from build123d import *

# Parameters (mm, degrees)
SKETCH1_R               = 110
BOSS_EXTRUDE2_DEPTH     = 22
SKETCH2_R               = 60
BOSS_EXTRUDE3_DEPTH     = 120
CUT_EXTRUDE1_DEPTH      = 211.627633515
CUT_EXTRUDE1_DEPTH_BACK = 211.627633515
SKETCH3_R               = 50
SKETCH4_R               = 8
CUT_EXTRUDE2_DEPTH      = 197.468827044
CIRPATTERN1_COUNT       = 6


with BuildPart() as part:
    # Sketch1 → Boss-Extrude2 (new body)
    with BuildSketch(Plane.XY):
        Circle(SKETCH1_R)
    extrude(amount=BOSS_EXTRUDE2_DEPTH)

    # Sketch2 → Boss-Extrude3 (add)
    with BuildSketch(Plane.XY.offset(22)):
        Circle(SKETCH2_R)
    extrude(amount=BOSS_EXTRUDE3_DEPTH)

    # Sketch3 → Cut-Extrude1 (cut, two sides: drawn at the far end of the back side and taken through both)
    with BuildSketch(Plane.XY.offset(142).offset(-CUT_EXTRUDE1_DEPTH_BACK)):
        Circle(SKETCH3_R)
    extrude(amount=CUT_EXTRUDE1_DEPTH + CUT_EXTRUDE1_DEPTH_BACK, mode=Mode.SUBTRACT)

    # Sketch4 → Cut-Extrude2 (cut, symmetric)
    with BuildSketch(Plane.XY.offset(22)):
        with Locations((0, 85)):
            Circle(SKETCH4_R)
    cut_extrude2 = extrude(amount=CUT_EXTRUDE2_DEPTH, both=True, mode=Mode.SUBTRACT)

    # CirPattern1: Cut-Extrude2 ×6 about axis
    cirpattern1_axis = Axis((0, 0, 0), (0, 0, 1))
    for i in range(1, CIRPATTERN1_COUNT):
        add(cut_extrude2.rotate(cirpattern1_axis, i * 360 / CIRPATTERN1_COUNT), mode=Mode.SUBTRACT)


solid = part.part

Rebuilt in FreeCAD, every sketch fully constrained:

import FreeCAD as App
import Part
import Sketcher
Q = App.Units.Quantity

doc = App.newDocument("Part")
body = doc.addObject("PartDesign::Body", "Body")

sketch1 = body.newObject("Sketcher::SketchObject", "Sketch")
sketch1.AttachmentSupport = (doc.getObject("XY_Plane"), [""])
sketch1.MapMode = "FlatFace"
sketch1.addGeometry(Part.Circle(App.Vector(0, 0, 0), App.Vector(0, 0, 1), 110), False)
sketch1.addConstraint([
    Sketcher.Constraint("Coincident", 0, 3, -1, 1),
    Sketcher.Constraint("Diameter", 0, Q("220 mm")),
])
pad1 = body.newObject("PartDesign::Pad", "Pad")
pad1.Profile = sketch1
pad1.Length = 22

sketch2 = body.newObject("Sketcher::SketchObject", "Sketch001")
sketch2.AttachmentSupport = (doc.getObject("XY_Plane"), [""])
sketch2.MapMode = "FlatFace"
sketch2.AttachmentOffset = App.Placement(App.Vector(0, 0, 22), App.Rotation())
sketch2.addGeometry(Part.Circle(App.Vector(0, 0, 0), App.Vector(0, 0, 1), 60), False)
sketch2.addConstraint([
    Sketcher.Constraint("Coincident", 0, 3, -1, 1),
    Sketcher.Constraint("Diameter", 0, Q("120 mm")),
])
pad2 = body.newObject("PartDesign::Pad", "Pad001")
pad2.Profile = sketch2
pad2.Length = 120

sketch3 = body.newObject("Sketcher::SketchObject", "Sketch002")
sketch3.AttachmentSupport = (doc.getObject("XY_Plane"), [""])
sketch3.MapMode = "FlatFace"
sketch3.AttachmentOffset = App.Placement(App.Vector(0, 0, 142), App.Rotation())
sketch3.addGeometry(Part.Circle(App.Vector(0, 0, 0), App.Vector(0, 0, 1), 50), False)
sketch3.addConstraint([
    Sketcher.Constraint("Coincident", 0, 3, -1, 1),
    Sketcher.Constraint("Diameter", 0, Q("100 mm")),
])
pocket1 = body.newObject("PartDesign::Pocket", "Pocket")
pocket1.Profile = sketch3
pocket1.Type = "ThroughAll"
pocket1.Midplane = True

sketch4 = body.newObject("Sketcher::SketchObject", "Sketch003")
sketch4.AttachmentSupport = (doc.getObject("XY_Plane"), [""])
sketch4.MapMode = "FlatFace"
sketch4.AttachmentOffset = App.Placement(App.Vector(0, 0, 22), App.Rotation())
sketch4.addGeometry(Part.Circle(App.Vector(0, 85, 0), App.Vector(0, 0, 1), 8), False)
sketch4.addConstraint([
    Sketcher.Constraint("PointOnObject", 0, 3, -2),
    Sketcher.Constraint("Diameter", 0, Q("16 mm")),
    Sketcher.Constraint("DistanceY", -1, 1, 0, 3, Q("85 mm")),
])
pocket2 = body.newObject("PartDesign::Pocket", "Pocket001")
pocket2.Profile = sketch4
pocket2.Length = 394.937654
pocket2.Midplane = True
doc.recompute()

polarpattern = body.newObject("PartDesign::PolarPattern", "PolarPattern")
polarpattern.Originals = [pocket2]
polarpattern.Axis = (doc.getObject("Z_Axis"), [""])
polarpattern.Angle = 360
polarpattern.Occurrences = 6
body.Tip = polarpattern

doc.recompute()
